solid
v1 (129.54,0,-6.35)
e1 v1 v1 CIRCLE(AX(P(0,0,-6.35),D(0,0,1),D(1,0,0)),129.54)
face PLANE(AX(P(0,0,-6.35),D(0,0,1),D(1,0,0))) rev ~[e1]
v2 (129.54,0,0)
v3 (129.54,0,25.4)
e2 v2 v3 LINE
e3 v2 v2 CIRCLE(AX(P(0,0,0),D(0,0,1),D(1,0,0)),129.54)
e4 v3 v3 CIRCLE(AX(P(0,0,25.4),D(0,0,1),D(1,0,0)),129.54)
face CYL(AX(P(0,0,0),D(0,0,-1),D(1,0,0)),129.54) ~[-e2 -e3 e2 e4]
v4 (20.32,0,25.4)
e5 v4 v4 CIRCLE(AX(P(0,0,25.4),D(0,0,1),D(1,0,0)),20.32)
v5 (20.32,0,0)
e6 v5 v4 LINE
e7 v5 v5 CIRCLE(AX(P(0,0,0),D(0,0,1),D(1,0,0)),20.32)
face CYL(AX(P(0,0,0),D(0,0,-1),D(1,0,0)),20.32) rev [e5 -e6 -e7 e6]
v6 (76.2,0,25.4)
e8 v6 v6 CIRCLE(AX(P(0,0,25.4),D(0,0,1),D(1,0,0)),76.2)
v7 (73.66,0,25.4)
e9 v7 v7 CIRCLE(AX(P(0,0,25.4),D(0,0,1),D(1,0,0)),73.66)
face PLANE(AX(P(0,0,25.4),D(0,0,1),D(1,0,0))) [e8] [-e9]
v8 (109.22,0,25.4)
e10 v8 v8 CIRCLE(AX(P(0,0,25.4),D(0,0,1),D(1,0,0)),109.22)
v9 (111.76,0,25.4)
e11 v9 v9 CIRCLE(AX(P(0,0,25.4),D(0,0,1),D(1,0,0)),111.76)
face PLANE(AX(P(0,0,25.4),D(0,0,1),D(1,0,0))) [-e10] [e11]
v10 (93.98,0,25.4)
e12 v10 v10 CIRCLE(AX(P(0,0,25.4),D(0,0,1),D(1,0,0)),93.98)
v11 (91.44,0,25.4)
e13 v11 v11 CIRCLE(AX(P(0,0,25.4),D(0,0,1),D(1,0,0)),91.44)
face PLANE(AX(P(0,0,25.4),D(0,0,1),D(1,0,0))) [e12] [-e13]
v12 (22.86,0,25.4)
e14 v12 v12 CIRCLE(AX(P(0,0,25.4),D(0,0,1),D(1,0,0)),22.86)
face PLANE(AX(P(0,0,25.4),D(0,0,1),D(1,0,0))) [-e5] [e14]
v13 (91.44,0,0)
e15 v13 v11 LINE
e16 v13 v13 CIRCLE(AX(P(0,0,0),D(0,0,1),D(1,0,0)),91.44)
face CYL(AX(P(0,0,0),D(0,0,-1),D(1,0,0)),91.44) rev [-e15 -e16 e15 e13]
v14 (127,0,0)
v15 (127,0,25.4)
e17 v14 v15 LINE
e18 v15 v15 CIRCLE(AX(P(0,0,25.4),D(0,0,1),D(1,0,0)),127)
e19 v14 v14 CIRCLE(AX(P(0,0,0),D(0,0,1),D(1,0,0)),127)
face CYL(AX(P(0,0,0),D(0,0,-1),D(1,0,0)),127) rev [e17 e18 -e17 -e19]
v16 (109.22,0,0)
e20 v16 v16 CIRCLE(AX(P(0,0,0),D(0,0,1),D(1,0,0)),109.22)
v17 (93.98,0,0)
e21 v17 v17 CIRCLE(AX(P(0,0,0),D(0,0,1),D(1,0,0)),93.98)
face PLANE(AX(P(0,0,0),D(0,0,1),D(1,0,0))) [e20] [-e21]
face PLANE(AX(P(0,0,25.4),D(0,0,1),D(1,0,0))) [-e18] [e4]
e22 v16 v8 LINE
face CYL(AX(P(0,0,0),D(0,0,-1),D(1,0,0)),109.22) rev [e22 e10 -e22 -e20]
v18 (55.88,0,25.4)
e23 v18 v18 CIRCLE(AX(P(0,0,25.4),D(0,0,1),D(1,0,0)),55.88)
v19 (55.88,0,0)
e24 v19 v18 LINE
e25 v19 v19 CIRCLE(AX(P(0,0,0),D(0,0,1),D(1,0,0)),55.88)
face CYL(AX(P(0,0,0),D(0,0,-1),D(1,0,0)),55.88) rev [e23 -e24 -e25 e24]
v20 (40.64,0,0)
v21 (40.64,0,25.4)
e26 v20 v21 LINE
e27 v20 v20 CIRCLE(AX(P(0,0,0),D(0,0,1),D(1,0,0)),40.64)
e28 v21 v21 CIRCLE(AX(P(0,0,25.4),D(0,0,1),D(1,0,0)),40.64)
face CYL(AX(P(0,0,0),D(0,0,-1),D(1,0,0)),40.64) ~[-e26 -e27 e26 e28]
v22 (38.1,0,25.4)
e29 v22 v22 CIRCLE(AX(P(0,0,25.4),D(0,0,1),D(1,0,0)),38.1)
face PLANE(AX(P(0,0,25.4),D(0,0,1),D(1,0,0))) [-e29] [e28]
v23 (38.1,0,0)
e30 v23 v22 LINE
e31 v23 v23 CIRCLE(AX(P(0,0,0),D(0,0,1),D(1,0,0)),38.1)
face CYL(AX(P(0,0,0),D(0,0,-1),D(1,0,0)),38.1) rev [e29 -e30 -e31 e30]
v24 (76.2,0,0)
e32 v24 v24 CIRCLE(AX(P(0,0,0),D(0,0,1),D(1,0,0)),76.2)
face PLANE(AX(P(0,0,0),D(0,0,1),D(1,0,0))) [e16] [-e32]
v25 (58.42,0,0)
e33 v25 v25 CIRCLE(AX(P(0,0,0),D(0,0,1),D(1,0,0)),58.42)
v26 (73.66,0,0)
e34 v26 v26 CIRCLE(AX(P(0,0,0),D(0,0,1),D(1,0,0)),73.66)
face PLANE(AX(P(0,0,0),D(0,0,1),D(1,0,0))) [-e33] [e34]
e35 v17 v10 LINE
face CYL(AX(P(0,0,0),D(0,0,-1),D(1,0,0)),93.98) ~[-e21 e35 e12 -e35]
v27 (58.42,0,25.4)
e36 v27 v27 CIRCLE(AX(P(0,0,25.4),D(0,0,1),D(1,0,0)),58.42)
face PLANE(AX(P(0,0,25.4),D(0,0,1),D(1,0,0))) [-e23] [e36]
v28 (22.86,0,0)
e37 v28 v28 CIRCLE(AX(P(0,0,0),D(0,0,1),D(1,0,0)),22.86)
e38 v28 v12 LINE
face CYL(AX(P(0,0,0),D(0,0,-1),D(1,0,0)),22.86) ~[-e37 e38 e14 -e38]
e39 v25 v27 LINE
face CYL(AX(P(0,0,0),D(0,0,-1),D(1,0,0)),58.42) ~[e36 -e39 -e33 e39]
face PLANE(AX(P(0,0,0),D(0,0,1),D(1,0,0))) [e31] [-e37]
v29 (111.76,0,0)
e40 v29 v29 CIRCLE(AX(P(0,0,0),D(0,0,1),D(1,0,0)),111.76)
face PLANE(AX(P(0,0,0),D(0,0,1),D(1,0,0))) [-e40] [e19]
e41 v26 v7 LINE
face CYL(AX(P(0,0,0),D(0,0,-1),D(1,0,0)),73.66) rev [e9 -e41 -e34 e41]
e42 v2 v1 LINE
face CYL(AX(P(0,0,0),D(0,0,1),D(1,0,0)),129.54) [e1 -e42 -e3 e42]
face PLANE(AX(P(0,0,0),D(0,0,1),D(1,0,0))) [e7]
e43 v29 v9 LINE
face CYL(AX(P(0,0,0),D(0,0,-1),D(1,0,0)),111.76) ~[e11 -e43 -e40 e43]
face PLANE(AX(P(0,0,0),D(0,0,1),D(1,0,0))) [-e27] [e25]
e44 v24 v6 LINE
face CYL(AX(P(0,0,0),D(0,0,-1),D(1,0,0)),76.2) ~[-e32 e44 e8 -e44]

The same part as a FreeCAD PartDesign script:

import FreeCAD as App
import Part
import Sketcher
Q = App.Units.Quantity

doc = App.newDocument("Part")
body = doc.addObject("PartDesign::Body", "Body")

sketch1 = doc.addObject("Sketcher::SketchObject", "Sketch")
body.addObject(sketch1)
sketch1.AttachmentSupport = (doc.XY_Plane, [""])
sketch1.MapMode = "FlatFace"
sketch1.addGeometry(Part.Circle(App.Vector(0, 0, 0), App.Vector(0, 0, 1), 130), False)
sketch1.addConstraint([
    Sketcher.Constraint("Coincident", 0, 3, -1, 1),
    Sketcher.Constraint("Diameter", 0, Q("10.2 in")),
])
pad1 = doc.addObject("PartDesign::Pad", "Pad")
body.addObject(pad1)
pad1.Profile = sketch1
pad1.Length = Q("0.25 in")
pad1.Reversed = True

sketch2 = doc.addObject("Sketcher::SketchObject", "Sketch001")
body.addObject(sketch2)
sketch2.AttachmentSupport = (doc.XY_Plane, [""])
sketch2.MapMode = "FlatFace"
sketch2.addGeometry([
    Part.Circle(App.Vector(0, 0, 0), App.Vector(0, 0, 1), 130),
    Part.Circle(App.Vector(0, 0, 0), App.Vector(0, 0, 1), 127),
    Part.Circle(App.Vector(0, 0, 0), App.Vector(0, 0, 1), 112),
    Part.Circle(App.Vector(0, 0, 0), App.Vector(0, 0, 1), 109),
    Part.Circle(App.Vector(0, 0, 0), App.Vector(0, 0, 1), 94),
    Part.Circle(App.Vector(0, 0, 0), App.Vector(0, 0, 1), 91),
    Part.Circle(App.Vector(0, 0, 0), App.Vector(0, 0, 1), 76),
    Part.Circle(App.Vector(0, 0, 0), App.Vector(0, 0, 1), 74),
    Part.Circle(App.Vector(0, 0, 0), App.Vector(0, 0, 1), 58),
    Part.Circle(App.Vector(0, 0, 0), App.Vector(0, 0, 1), 56),
    Part.Circle(App.Vector(0, 0, 0), App.Vector(0, 0, 1), 41),
    Part.Circle(App.Vector(0, 0, 0), App.Vector(0, 0, 1), 38),
    Part.Circle(App.Vector(0, 0, 0), App.Vector(0, 0, 1), 23),
    Part.Circle(App.Vector(0, 0, 0), App.Vector(0, 0, 1), 20),
], False)
sketch2.addConstraint([
    Sketcher.Constraint("Coincident", 0, 3, -1, 1),
    Sketcher.Constraint("Coincident", 1, 3, -1, 1),
    Sketcher.Constraint("Coincident", 2, 3, -1, 1),
    Sketcher.Constraint("Coincident", 3, 3, -1, 1),
    Sketcher.Constraint("Coincident", 4, 3, -1, 1),
    Sketcher.Constraint("Coincident", 5, 3, -1, 1),
    Sketcher.Constraint("Coincident", 6, 3, -1, 1),
    Sketcher.Constraint("Coincident", 7, 3, -1, 1),
    Sketcher.Constraint("Coincident", 8, 3, -1, 1),
    Sketcher.Constraint("Coincident", 9, 3, -1, 1),
    Sketcher.Constraint("Coincident", 10, 3, -1, 1),
    Sketcher.Constraint("Coincident", 11, 3, -1, 1),
    Sketcher.Constraint("Coincident", 12, 3, -1, 1),
    Sketcher.Constraint("Coincident", 13, 3, -1, 1),
    Sketcher.Constraint("Diameter", 1, Q("10 in")),
    Sketcher.Constraint("Diameter", 6, Q("6 in")),
    Sketcher.Constraint("Diameter", 11, Q("3 in")),
    Sketcher.Constraint("Diameter", 0, Q("10.2 in")),
    Sketcher.Constraint("Diameter", 2, Q("8.8 in")),
    Sketcher.Constraint("Diameter", 3, Q("8.6 in")),
    Sketcher.Constraint("Diameter", 4, Q("7.4 in")),
    Sketcher.Constraint("Diameter", 5, Q("7.2 in")),
    Sketcher.Constraint("Diameter", 7, Q("5.8 in")),
    Sketcher.Constraint("Diameter", 8, Q("4.6 in")),
    Sketcher.Constraint("Diameter", 9, Q("4.4 in")),
    Sketcher.Constraint("Diameter", 10, Q("3.2 in")),
    Sketcher.Constraint("Diameter", 12, Q("1.8 in")),
    Sketcher.Constraint("Diameter", 13, Q("1.6 in")),
])
pad2 = doc.addObject("PartDesign::Pad", "Pad001")
body.addObject(pad2)
pad2.Profile = sketch2
pad2.Length = Q("1 in")

doc.recompute()
